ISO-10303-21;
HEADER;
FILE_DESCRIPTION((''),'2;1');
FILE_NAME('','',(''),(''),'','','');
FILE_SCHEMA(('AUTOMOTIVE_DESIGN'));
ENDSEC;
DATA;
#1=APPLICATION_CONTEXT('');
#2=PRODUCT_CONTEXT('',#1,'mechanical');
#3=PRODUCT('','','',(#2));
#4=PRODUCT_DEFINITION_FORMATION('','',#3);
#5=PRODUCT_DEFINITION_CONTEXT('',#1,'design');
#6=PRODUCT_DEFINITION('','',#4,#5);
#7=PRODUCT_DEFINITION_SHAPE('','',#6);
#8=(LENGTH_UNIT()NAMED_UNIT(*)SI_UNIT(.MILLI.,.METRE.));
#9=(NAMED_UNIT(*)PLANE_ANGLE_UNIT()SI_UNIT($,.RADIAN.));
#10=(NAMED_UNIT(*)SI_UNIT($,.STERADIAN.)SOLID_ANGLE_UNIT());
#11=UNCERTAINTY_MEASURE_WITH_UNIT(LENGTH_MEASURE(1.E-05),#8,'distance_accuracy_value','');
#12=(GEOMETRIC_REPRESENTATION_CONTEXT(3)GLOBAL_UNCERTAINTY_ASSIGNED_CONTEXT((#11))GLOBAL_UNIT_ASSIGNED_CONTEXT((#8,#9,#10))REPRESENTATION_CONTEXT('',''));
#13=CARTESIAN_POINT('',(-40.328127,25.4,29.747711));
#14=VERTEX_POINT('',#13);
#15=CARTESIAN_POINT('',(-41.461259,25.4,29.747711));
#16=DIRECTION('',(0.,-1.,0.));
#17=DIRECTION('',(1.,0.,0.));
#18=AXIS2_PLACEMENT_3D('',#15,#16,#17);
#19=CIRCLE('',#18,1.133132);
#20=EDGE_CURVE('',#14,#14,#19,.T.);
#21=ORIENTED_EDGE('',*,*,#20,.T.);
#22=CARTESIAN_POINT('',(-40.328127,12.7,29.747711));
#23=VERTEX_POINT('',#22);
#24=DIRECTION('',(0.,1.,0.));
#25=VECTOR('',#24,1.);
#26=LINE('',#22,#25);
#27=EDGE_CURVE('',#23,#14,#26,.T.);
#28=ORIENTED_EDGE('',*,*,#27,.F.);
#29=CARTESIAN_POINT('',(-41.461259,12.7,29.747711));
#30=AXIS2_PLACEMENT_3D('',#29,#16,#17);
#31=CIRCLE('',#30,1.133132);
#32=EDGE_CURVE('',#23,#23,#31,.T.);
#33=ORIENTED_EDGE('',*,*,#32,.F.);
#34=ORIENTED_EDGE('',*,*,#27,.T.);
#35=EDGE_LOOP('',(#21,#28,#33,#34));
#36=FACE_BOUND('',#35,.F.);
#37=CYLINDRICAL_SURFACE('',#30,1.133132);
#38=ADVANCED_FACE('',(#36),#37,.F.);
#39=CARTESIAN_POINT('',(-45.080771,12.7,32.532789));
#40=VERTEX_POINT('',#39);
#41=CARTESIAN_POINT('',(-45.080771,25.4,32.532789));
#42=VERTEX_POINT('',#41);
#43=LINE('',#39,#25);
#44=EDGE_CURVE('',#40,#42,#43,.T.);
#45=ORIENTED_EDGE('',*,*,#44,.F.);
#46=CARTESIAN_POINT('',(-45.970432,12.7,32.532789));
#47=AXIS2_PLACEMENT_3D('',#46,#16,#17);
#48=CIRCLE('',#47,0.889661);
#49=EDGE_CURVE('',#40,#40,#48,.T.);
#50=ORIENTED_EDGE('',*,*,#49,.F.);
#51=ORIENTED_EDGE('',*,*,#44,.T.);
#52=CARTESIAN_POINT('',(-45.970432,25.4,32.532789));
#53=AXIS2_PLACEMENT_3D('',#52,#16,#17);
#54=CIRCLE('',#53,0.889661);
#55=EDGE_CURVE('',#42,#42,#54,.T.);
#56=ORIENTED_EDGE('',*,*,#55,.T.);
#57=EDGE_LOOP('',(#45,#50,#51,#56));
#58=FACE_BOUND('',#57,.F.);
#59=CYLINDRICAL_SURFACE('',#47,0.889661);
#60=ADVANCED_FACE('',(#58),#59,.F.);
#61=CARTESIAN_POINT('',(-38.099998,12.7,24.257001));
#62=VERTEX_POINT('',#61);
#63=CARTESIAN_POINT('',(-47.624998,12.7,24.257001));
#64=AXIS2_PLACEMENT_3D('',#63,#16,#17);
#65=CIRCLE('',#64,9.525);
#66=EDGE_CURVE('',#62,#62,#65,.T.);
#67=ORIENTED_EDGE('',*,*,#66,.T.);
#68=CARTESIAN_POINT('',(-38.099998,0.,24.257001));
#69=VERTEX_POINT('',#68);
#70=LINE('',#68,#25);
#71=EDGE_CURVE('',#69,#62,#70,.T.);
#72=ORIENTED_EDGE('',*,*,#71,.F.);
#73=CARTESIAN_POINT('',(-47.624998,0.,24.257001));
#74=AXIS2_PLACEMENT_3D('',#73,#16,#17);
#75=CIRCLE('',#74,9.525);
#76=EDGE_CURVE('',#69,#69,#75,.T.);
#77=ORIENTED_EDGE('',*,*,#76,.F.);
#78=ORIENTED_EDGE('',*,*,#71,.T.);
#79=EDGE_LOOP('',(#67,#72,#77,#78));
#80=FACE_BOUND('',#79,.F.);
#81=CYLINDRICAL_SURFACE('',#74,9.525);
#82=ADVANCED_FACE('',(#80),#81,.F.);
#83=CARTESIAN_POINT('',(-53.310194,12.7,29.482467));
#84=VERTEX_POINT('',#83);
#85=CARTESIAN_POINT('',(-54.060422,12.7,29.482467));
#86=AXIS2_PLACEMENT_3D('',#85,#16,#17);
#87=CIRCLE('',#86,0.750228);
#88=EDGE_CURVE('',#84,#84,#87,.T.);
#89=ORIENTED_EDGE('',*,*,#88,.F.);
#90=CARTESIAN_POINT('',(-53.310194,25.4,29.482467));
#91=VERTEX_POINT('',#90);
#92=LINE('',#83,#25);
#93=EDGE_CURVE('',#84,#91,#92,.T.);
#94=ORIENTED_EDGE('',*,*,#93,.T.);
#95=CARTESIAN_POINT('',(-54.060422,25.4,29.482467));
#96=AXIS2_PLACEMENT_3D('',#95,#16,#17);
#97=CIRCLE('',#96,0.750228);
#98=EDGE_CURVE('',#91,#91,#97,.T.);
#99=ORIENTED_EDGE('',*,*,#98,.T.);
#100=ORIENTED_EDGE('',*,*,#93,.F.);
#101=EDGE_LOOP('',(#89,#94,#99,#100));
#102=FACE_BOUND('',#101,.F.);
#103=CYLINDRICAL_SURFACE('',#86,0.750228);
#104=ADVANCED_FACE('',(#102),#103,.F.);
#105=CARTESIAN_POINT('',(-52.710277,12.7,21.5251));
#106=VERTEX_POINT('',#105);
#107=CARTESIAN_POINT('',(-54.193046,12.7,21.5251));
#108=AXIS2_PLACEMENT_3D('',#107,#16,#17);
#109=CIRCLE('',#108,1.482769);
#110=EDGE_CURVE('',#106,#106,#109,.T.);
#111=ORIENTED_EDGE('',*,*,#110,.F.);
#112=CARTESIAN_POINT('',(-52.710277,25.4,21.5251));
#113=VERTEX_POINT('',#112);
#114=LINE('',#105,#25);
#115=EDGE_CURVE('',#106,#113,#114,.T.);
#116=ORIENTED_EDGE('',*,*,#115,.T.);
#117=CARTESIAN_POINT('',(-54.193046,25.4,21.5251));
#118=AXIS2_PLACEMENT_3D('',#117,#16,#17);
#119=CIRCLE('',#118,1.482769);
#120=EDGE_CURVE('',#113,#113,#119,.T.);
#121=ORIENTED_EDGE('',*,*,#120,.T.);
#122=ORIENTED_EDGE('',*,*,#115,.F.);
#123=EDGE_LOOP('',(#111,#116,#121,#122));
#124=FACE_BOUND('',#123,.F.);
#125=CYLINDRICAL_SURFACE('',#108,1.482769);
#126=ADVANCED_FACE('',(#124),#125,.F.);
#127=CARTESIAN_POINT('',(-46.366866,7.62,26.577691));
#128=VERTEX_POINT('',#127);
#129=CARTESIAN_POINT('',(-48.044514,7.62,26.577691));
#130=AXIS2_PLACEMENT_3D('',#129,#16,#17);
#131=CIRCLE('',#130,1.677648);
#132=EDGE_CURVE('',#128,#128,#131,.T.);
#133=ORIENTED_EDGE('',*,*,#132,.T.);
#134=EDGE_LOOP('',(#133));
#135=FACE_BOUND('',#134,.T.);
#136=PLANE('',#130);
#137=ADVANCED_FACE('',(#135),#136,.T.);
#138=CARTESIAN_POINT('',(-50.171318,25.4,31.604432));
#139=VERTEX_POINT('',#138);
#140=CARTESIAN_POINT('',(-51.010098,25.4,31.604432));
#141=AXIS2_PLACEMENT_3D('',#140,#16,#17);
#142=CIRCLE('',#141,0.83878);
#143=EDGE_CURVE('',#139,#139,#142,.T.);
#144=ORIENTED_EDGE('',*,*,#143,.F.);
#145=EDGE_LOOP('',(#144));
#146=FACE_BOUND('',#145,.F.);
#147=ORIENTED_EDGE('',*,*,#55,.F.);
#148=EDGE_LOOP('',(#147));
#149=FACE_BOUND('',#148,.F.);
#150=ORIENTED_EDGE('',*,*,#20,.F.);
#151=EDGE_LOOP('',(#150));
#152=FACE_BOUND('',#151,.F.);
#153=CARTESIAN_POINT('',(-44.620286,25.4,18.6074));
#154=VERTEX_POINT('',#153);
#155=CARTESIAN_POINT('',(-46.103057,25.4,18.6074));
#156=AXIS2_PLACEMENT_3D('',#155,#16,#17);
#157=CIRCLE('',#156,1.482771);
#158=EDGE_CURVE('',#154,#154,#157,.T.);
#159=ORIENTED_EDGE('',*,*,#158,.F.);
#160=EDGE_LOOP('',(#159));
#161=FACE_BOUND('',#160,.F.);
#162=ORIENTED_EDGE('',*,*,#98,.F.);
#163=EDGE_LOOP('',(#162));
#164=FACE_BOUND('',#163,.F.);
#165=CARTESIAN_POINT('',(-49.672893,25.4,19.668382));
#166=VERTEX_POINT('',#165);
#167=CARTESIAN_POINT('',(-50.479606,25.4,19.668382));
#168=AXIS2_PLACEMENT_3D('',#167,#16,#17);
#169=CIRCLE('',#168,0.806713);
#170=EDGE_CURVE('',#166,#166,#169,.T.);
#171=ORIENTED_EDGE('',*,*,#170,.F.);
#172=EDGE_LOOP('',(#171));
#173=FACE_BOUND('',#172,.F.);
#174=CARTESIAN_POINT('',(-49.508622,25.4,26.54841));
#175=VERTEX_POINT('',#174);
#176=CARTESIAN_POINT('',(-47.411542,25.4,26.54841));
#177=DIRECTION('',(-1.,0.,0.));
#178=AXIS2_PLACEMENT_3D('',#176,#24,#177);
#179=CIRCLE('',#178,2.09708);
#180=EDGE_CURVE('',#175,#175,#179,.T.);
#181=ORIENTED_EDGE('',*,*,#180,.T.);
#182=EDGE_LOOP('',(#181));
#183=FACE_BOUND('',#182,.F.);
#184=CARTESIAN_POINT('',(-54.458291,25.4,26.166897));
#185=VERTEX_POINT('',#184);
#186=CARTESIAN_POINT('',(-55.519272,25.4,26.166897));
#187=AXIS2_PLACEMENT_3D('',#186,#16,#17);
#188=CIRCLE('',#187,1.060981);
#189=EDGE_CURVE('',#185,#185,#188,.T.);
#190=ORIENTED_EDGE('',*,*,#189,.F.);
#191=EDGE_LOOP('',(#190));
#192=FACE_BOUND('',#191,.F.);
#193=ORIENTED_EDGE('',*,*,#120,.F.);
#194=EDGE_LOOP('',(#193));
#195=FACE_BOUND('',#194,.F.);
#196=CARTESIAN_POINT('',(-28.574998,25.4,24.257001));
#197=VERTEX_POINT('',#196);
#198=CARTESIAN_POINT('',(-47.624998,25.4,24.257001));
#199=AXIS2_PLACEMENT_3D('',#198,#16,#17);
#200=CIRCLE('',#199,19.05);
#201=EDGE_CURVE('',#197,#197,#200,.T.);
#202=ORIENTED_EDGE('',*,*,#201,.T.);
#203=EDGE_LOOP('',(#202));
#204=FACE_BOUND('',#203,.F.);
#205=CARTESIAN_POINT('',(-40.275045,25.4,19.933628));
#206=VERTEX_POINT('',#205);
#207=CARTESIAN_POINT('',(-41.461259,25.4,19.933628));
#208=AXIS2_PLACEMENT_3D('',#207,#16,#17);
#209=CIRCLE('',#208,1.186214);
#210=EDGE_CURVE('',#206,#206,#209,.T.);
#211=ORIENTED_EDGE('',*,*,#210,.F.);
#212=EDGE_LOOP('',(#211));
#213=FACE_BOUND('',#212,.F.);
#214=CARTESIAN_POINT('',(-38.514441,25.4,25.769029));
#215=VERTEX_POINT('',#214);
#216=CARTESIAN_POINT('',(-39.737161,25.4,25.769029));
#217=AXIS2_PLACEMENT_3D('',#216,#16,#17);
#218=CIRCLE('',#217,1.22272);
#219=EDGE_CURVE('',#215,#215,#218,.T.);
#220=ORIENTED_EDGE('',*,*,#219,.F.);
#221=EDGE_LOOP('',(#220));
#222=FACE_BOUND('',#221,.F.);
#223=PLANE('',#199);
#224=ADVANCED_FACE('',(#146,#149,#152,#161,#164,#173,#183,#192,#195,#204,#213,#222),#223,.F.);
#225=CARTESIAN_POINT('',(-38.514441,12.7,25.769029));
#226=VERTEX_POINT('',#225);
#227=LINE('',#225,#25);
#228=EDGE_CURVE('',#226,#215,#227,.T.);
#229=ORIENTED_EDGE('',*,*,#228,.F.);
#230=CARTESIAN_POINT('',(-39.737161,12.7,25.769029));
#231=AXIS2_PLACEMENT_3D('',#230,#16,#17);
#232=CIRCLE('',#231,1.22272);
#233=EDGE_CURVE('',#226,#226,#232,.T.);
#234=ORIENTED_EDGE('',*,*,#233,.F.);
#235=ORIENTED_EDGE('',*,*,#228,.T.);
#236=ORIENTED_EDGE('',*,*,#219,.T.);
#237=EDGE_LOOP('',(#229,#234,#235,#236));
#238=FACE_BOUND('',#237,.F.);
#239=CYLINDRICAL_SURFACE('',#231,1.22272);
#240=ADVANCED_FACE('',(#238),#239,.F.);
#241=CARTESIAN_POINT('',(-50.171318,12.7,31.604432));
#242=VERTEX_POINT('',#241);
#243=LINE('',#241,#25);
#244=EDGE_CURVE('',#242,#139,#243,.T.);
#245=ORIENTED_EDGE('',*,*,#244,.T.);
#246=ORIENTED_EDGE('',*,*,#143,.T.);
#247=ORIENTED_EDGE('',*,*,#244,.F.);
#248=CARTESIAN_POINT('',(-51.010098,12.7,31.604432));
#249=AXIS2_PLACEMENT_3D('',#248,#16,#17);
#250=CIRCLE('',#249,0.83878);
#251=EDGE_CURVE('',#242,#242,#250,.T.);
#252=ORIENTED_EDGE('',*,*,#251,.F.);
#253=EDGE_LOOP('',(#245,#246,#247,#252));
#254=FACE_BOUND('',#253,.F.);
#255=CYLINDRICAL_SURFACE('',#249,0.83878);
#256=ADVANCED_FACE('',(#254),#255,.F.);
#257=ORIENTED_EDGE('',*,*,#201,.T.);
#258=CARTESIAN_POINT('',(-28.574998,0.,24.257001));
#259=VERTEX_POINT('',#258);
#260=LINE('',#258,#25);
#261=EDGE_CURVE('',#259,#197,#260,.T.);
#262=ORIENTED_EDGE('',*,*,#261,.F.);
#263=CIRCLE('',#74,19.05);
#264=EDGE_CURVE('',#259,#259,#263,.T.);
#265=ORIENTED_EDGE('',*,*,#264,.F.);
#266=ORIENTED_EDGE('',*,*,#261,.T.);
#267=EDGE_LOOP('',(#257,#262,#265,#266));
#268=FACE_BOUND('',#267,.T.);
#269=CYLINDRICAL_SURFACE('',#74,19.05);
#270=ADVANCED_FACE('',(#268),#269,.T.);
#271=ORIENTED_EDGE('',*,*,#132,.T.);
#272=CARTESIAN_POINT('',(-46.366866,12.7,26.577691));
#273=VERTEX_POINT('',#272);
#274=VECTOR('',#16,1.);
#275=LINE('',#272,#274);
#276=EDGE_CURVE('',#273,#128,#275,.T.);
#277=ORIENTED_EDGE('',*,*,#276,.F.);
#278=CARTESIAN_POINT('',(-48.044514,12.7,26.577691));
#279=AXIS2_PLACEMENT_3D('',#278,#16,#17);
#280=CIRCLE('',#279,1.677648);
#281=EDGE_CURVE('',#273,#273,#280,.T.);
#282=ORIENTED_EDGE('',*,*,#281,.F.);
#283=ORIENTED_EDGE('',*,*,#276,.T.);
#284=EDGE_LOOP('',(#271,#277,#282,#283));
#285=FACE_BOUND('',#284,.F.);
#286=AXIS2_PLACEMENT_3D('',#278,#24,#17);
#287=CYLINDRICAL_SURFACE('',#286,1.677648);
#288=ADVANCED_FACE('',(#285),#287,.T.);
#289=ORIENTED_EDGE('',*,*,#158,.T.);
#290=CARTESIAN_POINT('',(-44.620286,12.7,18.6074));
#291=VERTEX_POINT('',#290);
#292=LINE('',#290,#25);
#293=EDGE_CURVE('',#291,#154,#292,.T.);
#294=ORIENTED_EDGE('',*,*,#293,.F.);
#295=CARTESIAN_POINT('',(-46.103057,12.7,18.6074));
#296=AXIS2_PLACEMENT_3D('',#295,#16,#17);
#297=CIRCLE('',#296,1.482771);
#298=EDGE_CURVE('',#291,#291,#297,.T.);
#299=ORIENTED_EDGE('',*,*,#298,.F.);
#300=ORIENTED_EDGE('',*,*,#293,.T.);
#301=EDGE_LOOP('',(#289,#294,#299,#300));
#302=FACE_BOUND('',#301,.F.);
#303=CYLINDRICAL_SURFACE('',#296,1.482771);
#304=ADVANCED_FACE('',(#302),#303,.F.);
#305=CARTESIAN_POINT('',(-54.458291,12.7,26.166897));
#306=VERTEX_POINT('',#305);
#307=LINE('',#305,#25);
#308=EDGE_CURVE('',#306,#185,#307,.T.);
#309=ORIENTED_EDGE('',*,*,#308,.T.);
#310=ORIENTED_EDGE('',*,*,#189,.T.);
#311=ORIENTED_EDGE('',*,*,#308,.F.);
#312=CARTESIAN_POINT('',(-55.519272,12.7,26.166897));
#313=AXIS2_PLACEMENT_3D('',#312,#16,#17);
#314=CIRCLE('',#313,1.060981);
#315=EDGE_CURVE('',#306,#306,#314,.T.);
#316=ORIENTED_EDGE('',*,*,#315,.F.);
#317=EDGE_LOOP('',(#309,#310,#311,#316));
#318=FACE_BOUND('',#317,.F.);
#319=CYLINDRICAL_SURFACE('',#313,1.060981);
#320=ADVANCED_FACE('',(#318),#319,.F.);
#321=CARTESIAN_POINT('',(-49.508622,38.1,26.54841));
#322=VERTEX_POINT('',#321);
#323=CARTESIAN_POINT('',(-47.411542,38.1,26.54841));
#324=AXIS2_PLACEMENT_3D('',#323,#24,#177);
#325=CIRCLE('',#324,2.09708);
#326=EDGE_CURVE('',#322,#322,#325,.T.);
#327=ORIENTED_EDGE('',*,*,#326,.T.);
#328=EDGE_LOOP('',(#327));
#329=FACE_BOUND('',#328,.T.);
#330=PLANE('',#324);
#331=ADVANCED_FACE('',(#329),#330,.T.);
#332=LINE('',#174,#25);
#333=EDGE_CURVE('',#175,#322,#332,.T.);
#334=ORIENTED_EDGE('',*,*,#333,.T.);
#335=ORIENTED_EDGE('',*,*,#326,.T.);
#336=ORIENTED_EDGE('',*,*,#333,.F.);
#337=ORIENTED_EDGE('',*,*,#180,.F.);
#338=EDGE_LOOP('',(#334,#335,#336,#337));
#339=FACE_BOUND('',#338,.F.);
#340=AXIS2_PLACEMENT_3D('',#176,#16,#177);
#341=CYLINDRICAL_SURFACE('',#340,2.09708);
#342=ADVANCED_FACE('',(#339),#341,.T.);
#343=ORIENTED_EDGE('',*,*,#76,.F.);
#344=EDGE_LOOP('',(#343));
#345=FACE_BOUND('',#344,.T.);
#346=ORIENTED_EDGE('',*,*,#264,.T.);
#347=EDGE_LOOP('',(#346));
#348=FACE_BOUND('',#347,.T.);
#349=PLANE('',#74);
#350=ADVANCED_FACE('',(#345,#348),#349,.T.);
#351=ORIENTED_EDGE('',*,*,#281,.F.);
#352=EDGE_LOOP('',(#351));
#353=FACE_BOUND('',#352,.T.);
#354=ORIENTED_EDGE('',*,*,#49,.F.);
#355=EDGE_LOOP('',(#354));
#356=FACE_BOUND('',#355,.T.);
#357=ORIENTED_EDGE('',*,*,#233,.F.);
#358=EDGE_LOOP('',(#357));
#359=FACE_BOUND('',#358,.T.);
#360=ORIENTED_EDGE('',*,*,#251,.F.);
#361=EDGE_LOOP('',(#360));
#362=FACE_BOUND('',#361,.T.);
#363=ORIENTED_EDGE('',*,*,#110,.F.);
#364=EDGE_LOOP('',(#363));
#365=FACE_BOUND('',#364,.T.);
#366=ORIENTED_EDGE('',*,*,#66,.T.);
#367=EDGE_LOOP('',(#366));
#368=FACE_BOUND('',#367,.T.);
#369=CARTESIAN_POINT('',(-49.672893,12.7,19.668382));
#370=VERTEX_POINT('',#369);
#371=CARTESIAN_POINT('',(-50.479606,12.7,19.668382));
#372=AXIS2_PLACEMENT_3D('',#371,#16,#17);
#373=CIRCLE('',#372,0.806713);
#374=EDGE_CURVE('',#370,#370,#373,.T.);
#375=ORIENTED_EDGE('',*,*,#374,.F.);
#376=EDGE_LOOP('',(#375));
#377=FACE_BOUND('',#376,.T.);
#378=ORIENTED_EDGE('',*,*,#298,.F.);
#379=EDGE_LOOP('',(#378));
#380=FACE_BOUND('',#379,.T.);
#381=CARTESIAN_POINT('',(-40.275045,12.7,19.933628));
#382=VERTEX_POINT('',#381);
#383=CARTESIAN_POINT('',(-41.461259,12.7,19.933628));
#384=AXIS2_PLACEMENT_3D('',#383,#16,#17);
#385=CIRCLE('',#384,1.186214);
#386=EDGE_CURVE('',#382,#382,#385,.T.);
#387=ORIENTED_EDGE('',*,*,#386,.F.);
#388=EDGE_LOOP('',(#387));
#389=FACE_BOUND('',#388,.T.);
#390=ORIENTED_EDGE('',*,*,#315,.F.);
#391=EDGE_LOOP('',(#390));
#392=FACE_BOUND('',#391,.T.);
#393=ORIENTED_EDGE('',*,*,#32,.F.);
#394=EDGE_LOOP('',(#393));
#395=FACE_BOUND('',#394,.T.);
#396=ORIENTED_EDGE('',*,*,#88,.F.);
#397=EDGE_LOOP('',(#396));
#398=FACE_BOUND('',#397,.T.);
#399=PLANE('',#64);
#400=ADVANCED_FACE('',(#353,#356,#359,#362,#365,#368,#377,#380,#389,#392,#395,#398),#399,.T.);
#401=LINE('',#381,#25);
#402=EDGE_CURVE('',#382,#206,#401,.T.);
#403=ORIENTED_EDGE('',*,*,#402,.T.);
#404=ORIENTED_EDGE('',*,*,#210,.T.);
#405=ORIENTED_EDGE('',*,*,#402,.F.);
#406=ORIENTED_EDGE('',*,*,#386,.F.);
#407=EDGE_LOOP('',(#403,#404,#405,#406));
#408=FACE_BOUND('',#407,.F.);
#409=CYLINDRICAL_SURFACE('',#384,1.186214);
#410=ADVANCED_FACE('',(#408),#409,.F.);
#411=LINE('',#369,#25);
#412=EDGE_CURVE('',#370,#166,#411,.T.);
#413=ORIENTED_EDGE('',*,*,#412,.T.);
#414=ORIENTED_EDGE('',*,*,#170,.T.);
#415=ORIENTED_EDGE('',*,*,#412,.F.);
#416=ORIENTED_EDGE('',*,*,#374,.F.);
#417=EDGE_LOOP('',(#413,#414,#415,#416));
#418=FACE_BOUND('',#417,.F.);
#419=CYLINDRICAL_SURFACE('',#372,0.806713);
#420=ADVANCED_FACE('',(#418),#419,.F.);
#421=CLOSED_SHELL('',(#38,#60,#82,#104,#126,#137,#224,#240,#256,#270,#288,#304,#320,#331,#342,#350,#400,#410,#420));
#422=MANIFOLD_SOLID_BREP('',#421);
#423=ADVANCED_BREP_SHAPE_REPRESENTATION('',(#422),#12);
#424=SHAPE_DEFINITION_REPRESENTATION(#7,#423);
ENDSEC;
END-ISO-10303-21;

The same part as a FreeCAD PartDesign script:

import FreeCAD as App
import Part
import Sketcher

V = App.Vector
Q = App.Units.Quantity

doc = App.newDocument("Part")
body = doc.addObject("PartDesign::Body", "Body")

# Sketch on XZ plane
sketch1 = body.newObject("Sketcher::SketchObject", "Sketch")
sketch1.AttachmentSupport = (doc.getObject("XZ_Plane"), [""])
sketch1.MapMode = "FlatFace"
sketch1.addGeometry(Part.Circle(V(-48, 24, 0), V(0, 0, 1), 19), False)
sketch1.addConstraint(Sketcher.Constraint("Diameter", 0, Q("1.5 in")))
sketch1.addConstraint(Sketcher.Constraint("DistanceX", 0, 3, -1, 1, Q("1.8749999 in")))
sketch1.addConstraint(Sketcher.Constraint("DistanceY", -1, 1, 0, 3, Q("0.955 in")))
pad1 = body.newObject("PartDesign::Pad", "Pad")
pad1.Profile = sketch1
pad1.Length = Q("1 in")
pad1.Reversed = True

# Sketch on XZ plane
sketch2 = body.newObject("Sketcher::SketchObject", "Sketch001")
sketch2.AttachmentSupport = (doc.getObject("XZ_Plane"), [""])
sketch2.MapMode = "FlatFace"
sketch2.addGeometry(Part.Circle(V(-48, 24, 0), V(0, 0, 1), 10), False)
sketch2.addConstraint(Sketcher.Constraint("Diameter", 0, Q("0.75 in")))
sketch2.addConstraint(Sketcher.Constraint("DistanceX", 0, 3, -1, 1, Q("1.8749999 in")))
sketch2.addConstraint(Sketcher.Constraint("DistanceY", -1, 1, 0, 3, Q("0.955 in")))
pocket1 = body.newObject("PartDesign::Pocket", "Pocket")
pocket1.Profile = sketch2
pocket1.Length = Q("0.5 in")

# Sketch on XZ plane
sketch3 = body.newObject("Sketcher::SketchObject", "Sketch002")
sketch3.AttachmentSupport = (doc.getObject("XZ_Plane"), [""])
sketch3.MapMode = "FlatFace"
sketch3.AttachmentOffset = App.Placement(V(0, 0, -0.5 * 25.4), App.Rotation())
sketch3.addGeometry(Part.Circle(V(-41.5, 29.7, 0), V(0, 0, 1), 1.1), False)
sketch3.addGeometry(Part.Circle(V(-46, 32.5, 0), V(0, 0, 1), 0.9), False)
sketch3.addGeometry(Part.Circle(V(-51, 31.6, 0), V(0, 0, 1), 0.8), False)
sketch3.addGeometry(Part.Circle(V(-54.1, 29.5, 0), V(0, 0, 1), 0.8), False)
sketch3.addGeometry(Part.Circle(V(-55.5, 26.2, 0), V(0, 0, 1), 1.1), False)
sketch3.addGeometry(Part.Circle(V(-54.2, 21.5, 0), V(0, 0, 1), 1.5), False)
sketch3.addGeometry(Part.Circle(V(-50.5, 19.7, 0), V(0, 0, 1), 0.8), False)
sketch3.addGeometry(Part.Circle(V(-46.1, 18.6, 0), V(0, 0, 1), 1.5), False)
sketch3.addGeometry(Part.Circle(V(-41.5, 19.9, 0), V(0, 0, 1), 1.2), False)
sketch3.addGeometry(Part.Circle(V(-39.7, 25.8, 0), V(0, 0, 1), 1.2), False)
sketch3.addConstraint(Sketcher.Constraint("Vertical", 0, 3, 8, 3))
sketch3.addConstraint(Sketcher.Constraint("Diameter", 2, 1.67756))
sketch3.addConstraint(Sketcher.Constraint("Diameter", 4, 2.121962))
sketch3.addConstraint(Sketcher.Constraint("Diameter", 5, 2.965538))
sketch3.addConstraint(Sketcher.Constraint("Diameter", 8, 2.372428))
sketch3.addConstraint(Sketcher.Constraint("Diameter", 9, 2.44544))
sketch3.addConstraint(Sketcher.Constraint("Diameter", 0, 2.266264))
sketch3.addConstraint(Sketcher.Constraint("Diameter", 1, 1.779322))
sketch3.addConstraint(Sketcher.Constraint("Diameter", 3, 1.500456))
sketch3.addConstraint(Sketcher.Constraint("Diameter", 6, 1.613426))
sketch3.addConstraint(Sketcher.Constraint("Diameter", 7, 2.965542))
sketch3.addConstraint(Sketcher.Constraint("DistanceY", -1, 1, 5, 3, 21.5251))
sketch3.addConstraint(Sketcher.Constraint("DistanceY", -1, 1, 7, 3, 18.6074))
sketch3.addConstraint(Sketcher.Constraint("DistanceX", 7, 3, 0, 3, 4.641798))
sketch3.addConstraint(Sketcher.Constraint("DistanceY", 8, 3, 9, 3, 5.835401))
sketch3.addConstraint(Sketcher.Constraint("DistanceX", 0, 3, -1, 1, 41.461259))
sketch3.addConstraint(Sketcher.Constraint("DistanceY", -1, 1, 0, 3, 29.747711))
sketch3.addConstraint(Sketcher.Constraint("DistanceY", -1, 1, 1, 3, 32.532789))
sketch3.addConstraint(Sketcher.Constraint("DistanceY", -1, 1, 2, 3, 31.604432))
sketch3.addConstraint(Sketcher.Constraint("DistanceX", 9, 3, -1, 1, 39.737161))
sketch3.addConstraint(Sketcher.Constraint("DistanceY", -1, 1, 9, 3, 25.769029))
sketch3.addConstraint(Sketcher.Constraint("DistanceX", 2, 3, 0, 3, 9.548839))
sketch3.addConstraint(Sketcher.Constraint("DistanceX", 3, 3, 1, 3, 8.08999))
sketch3.addConstraint(Sketcher.Constraint("DistanceX", 4, 3, 3, 3, 1.45885))
sketch3.addConstraint(Sketcher.Constraint("DistanceY", 4, 3, 3, 3, 3.31557))
sketch3.addConstraint(Sketcher.Constraint("DistanceX", 5, 3, 2, 3, 3.182948))
sketch3.addConstraint(Sketcher.Constraint("DistanceX", 5, 3, 6, 3, 3.71344))
sketch3.addConstraint(Sketcher.Constraint("DistanceY", 6, 3, 2, 3, 11.93605))
sketch3.addConstraint(Sketcher.Constraint("DistanceX", 1, 3, 9, 3, 6.233271))
sketch3.addConstraint(Sketcher.Constraint("DistanceY", -1, 1, 3, 3, 29.482467))
pocket2 = body.newObject("PartDesign::Pocket", "Pocket001")
pocket2.Profile = sketch3
pocket2.Length = Q("1 in")

# Sketch on XZ plane
sketch4 = body.newObject("Sketcher::SketchObject", "Sketch003")
sketch4.AttachmentSupport = (doc.getObject("XZ_Plane"), [""])
sketch4.MapMode = "FlatFace"
sketch4.AttachmentOffset = App.Placement(V(0, 0, -0.5 * 25.4), App.Rotation())
sketch4.addGeometry(Part.Circle(V(-48, 26.6, 0), V(0, 0, 1), 1.7), False)
sketch4.addConstraint(Sketcher.Constraint("Diameter", 0, 3.355296))
sketch4.addConstraint(Sketcher.Constraint("DistanceY", -1, 1, 0, 3, 26.577691))
sketch4.addConstraint(Sketcher.Constraint("DistanceX", 0, 3, -1, 1, 48.044514))
pad2 = body.newObject("PartDesign::Pad", "Pad001")
pad2.Profile = sketch4
pad2.Length = Q("0.2 in")

# Sketch on XZ plane
sketch5 = body.newObject("Sketcher::SketchObject", "Sketch004")
sketch5.AttachmentSupport = (doc.getObject("XZ_Plane"), [""])
sketch5.MapMode = "FlatFace"
sketch5.AttachmentOffset = App.Placement(V(0, 0, -1 * 25.4), App.Rotation())
sketch5.addGeometry(Part.Circle(V(-47.4, 26.5, 0), V(0, 0, 1), 2.1), False)
sketch5.addConstraint(Sketcher.Constraint("Diameter", 0, 4.19416))
sketch5.addConstraint(Sketcher.Constraint("DistanceX", 0, 3, -1, 1, 47.411542))
sketch5.addConstraint(Sketcher.Constraint("DistanceY", -1, 1, 0, 3, 26.54841))
pad3 = body.newObject("PartDesign::Pad", "Pad002")
pad3.Profile = sketch5
pad3.Length = Q("0.5 in")
pad3.Reversed = True

doc.recompute()
